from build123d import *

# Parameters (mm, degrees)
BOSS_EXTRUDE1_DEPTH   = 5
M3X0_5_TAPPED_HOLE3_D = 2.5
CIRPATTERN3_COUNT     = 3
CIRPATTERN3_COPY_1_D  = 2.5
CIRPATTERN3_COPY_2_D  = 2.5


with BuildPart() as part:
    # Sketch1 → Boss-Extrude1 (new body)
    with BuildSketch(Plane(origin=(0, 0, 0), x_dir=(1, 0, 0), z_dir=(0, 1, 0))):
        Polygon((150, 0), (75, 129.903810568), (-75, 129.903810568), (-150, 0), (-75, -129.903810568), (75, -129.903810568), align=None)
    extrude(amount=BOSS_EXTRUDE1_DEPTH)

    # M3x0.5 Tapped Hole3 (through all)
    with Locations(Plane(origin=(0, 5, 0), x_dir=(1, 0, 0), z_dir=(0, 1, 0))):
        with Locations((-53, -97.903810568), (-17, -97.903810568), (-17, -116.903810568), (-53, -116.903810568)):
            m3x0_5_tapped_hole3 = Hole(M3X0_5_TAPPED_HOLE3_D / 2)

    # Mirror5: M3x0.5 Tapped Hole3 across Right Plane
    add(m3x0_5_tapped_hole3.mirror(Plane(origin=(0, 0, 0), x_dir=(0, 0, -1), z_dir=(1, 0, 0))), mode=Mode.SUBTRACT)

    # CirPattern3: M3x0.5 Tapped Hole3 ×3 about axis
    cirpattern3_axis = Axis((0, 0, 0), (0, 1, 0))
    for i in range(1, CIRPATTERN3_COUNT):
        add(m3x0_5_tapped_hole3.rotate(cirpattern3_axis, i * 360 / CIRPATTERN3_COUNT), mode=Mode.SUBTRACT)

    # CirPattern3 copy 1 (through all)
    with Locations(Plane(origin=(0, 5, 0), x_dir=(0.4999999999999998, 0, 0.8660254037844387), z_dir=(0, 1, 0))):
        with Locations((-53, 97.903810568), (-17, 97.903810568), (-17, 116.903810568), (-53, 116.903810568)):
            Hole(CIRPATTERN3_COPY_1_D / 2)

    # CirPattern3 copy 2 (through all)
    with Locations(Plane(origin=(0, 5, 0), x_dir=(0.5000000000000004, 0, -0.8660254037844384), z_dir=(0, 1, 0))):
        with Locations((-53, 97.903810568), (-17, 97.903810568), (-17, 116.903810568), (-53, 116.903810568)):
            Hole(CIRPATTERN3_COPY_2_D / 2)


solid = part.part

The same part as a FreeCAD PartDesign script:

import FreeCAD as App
import Part
import Sketcher
Q = App.Units.Quantity


def add_polygon(sketch, points):
    """Adds a closed chain of lines whose ends are joined by coincident constraints."""
    first, n = sketch.GeometryCount, len(points)
    for a, b in zip(points, points[1:] + points[:1]):
        sketch.addGeometry(Part.LineSegment(App.Vector(*a, 0), App.Vector(*b, 0)), False)
    for i in range(n):
        sketch.addConstraint(Sketcher.Constraint("Coincident", first + i, 2, first + (i + 1) % n, 1))

doc = App.newDocument("Part")
body = doc.addObject("PartDesign::Body", "Body")

# Sketch on XZ plane
sketch1 = doc.addObject("Sketcher::SketchObject", "Sketch")
body.addObject(sketch1)
sketch1.AttachmentSupport = (doc.XZ_Plane, [""])
sketch1.MapMode = "FlatFace"
add_polygon(sketch1, [(150, 0), (75, -129.903811), (-75, -129.903811), (-150, 0), (-75, 129.903811), (75, 129.903811)])  # lines 0-5
sketch1.addConstraint(Sketcher.Constraint("Horizontal", 1))
sketch1.addConstraint(Sketcher.Constraint("Horizontal", 4))
sketch1.addConstraint(Sketcher.Constraint("Symmetric", 0, 2, 3, 2, -1, 1))
sketch1.addConstraint(Sketcher.Constraint("Symmetric", 2, 2, 5, 2, -1, 1))
sketch1.addConstraint(Sketcher.Constraint("PointOnObject", 2, 2, -1))
sketch1.addConstraint(Sketcher.Constraint("Parallel", 2, 5))
sketch1.addConstraint(Sketcher.Constraint("Vertical", 1, 2, 3, 2))
sketch1.addConstraint(Sketcher.Constraint("DistanceX", 1, 2, 1, 1, Q("150 mm")))
sketch1.addConstraint(Sketcher.Constraint("Angle", 0, Q("-120 deg")))
sketch1.addConstraint(Sketcher.Constraint("Distance", 0, Q("150 mm")))
pad1 = doc.addObject("PartDesign::Pad", "Pad")
body.addObject(pad1)
pad1.Profile = sketch1
pad1.Length = 5
pad1.Reversed = True

# Sketch on XZ plane
sketch2 = doc.addObject("Sketcher::SketchObject", "Sketch001")
body.addObject(sketch2)
sketch2.AttachmentSupport = (doc.XZ_Plane, [""])
sketch2.MapMode = "FlatFace"
sketch2.AttachmentOffset = App.Placement(App.Vector(0, 0, -5), App.Rotation())
sketch2.addGeometry(Part.Circle(App.Vector(-53, 97.903811, 0), App.Vector(0, 0, 1), 1.25), False)
sketch2.addGeometry(Part.Circle(App.Vector(-17, 97.903811, 0), App.Vector(0, 0, 1), 1.25), False)
sketch2.addGeometry(Part.Circle(App.Vector(-17, 116.903811, 0), App.Vector(0, 0, 1), 1.25), False)
sketch2.addGeometry(Part.Circle(App.Vector(-53, 116.903811, 0), App.Vector(0, 0, 1), 1.25), False)
sketch2.addConstraint(Sketcher.Constraint("Equal", 0, 1))
sketch2.addConstraint(Sketcher.Constraint("Equal", 1, 2))
sketch2.addConstraint(Sketcher.Constraint("Equal", 2, 3))
sketch2.addConstraint(Sketcher.Constraint("Horizontal", 0, 3, 1, 3))
sketch2.addConstraint(Sketcher.Constraint("Horizontal", 2, 3, 3, 3))
sketch2.addConstraint(Sketcher.Constraint("Vertical", 1, 3, 2, 3))
sketch2.addConstraint(Sketcher.Constraint("Vertical", 0, 3, 3, 3))
sketch2.addConstraint(Sketcher.Constraint("Diameter", 0, Q("2.5 mm")))
sketch2.addConstraint(Sketcher.Constraint("DistanceX", 0, 3, -1, 1, Q("53 mm")))
sketch2.addConstraint(Sketcher.Constraint("DistanceX", 1, 3, -1, 1, Q("17 mm")))
sketch2.addConstraint(Sketcher.Constraint("DistanceY", 1, 3, 2, 3, Q("19 mm")))
sketch2.addConstraint(Sketcher.Constraint("DistanceY", -1, 1, 0, 3, Q("97.903811 mm")))
doc.recompute()
hole = doc.addObject("PartDesign::Hole", "Hole")
body.addObject(hole)
hole.Profile = sketch2
hole.ThreadType = "None"
hole.Diameter = 2.5
hole.DepthType = "ThroughAll"
hole.Reversed = True
doc.recompute()

mirrored = doc.addObject("PartDesign::Mirrored", "Mirrored")
body.addObject(mirrored)
mirrored.Originals = [hole]
mirrored.MirrorPlane = (doc.YZ_Plane, [""])
body.Tip = mirrored
doc.recompute()

polarpattern = doc.addObject("PartDesign::PolarPattern", "PolarPattern")
body.addObject(polarpattern)
polarpattern.Originals = [hole]
polarpattern.Axis = (doc.Y_Axis, [""])
polarpattern.Angle = 360
polarpattern.Occurrences = 3
body.Tip = polarpattern

# Sketch on XZ plane
sketch3 = doc.addObject("Sketcher::SketchObject", "Sketch002")
body.addObject(sketch3)
sketch3.AttachmentSupport = (doc.XZ_Plane, [""])
sketch3.MapMode = "FlatFace"
sketch3.AttachmentOffset = App.Placement(App.Vector(0, 0, -5), App.Rotation())
sketch3.addGeometry(Part.Circle(App.Vector(58.287187, -94.851252, 0), App.Vector(0, 0, 1), 1.25), False)
sketch3.addGeometry(Part.Circle(App.Vector(76.287187, -63.674337, 0), App.Vector(0, 0, 1), 1.25), False)
sketch3.addGeometry(Part.Circle(App.Vector(92.74167, -73.174337, 0), App.Vector(0, 0, 1), 1.25), False)
sketch3.addGeometry(Part.Circle(App.Vector(74.74167, -104.351252, 0), App.Vector(0, 0, 1), 1.25), False)
sketch3.addConstraint(Sketcher.Constraint("Equal", 0, 1))
sketch3.addConstraint(Sketcher.Constraint("Equal", 1, 2))
sketch3.addConstraint(Sketcher.Constraint("Equal", 2, 3))
sketch3.addConstraint(Sketcher.Constraint("Diameter", 0, Q("2.5 mm")))
sketch3.addConstraint(Sketcher.Constraint("DistanceX", 0, 3, 1, 3, Q("18 mm")))
sketch3.addConstraint(Sketcher.Constraint("DistanceX", 3, 3, 2, 3, Q("18 mm")))
sketch3.addConstraint(Sketcher.Constraint("DistanceY", 2, 3, 1, 3, Q("9.5 mm")))
sketch3.addConstraint(Sketcher.Constraint("DistanceY", 3, 3, 0, 3, Q("9.5 mm")))
sketch3.addConstraint(Sketcher.Constraint("DistanceY", 0, 3, -1, 1, Q("94.851252 mm")))
sketch3.addConstraint(Sketcher.Constraint("DistanceX", -1, 1, 2, 3, Q("92.74167 mm")))
sketch3.addConstraint(Sketcher.Constraint("DistanceX", -1, 1, 0, 3, Q("58.287187 mm")))
sketch3.addConstraint(Sketcher.Constraint("DistanceY", 1, 3, -1, 1, Q("63.674337 mm")))
doc.recompute()
hole2 = doc.addObject("PartDesign::Hole", "Hole001")
body.addObject(hole2)
hole2.Profile = sketch3
hole2.ThreadType = "None"
hole2.Diameter = 2.5
hole2.DepthType = "ThroughAll"
hole2.Reversed = True

# Sketch on XZ plane
sketch4 = doc.addObject("Sketcher::SketchObject", "Sketch003")
body.addObject(sketch4)
sketch4.AttachmentSupport = (doc.XZ_Plane, [""])
sketch4.MapMode = "FlatFace"
sketch4.AttachmentOffset = App.Placement(App.Vector(0, 0, -5), App.Rotation())
sketch4.addGeometry(Part.Circle(App.Vector(-111.287187, -3.052559, 0), App.Vector(0, 0, 1), 1.25), False)
sketch4.addGeometry(Part.Circle(App.Vector(-93.287187, -34.229473, 0), App.Vector(0, 0, 1), 1.25), False)
sketch4.addGeometry(Part.Circle(App.Vector(-109.74167, -43.729473, 0), App.Vector(0, 0, 1), 1.25), False)
sketch4.addGeometry(Part.Circle(App.Vector(-127.74167, -12.552559, 0), App.Vector(0, 0, 1), 1.25), False)
sketch4.addConstraint(Sketcher.Constraint("Equal", 0, 1))
sketch4.addConstraint(Sketcher.Constraint("Equal", 1, 2))
sketch4.addConstraint(Sketcher.Constraint("Equal", 2, 3))
sketch4.addConstraint(Sketcher.Constraint("Diameter", 0, Q("2.5 mm")))
sketch4.addConstraint(Sketcher.Constraint("DistanceX", 0, 3, 1, 3, Q("18 mm")))
sketch4.addConstraint(Sketcher.Constraint("DistanceX", 3, 3, 2, 3, Q("18 mm")))
sketch4.addConstraint(Sketcher.Constraint("DistanceY", 2, 3, 1, 3, Q("9.5 mm")))
sketch4.addConstraint(Sketcher.Constraint("DistanceY", 3, 3, 0, 3, Q("9.5 mm")))
sketch4.addConstraint(Sketcher.Constraint("DistanceY", 0, 3, -1, 1, Q("3.052559 mm")))
sketch4.addConstraint(Sketcher.Constraint("DistanceX", 2, 3, -1, 1, Q("109.74167 mm")))
sketch4.addConstraint(Sketcher.Constraint("DistanceX", 0, 3, -1, 1, Q("111.287187 mm")))
sketch4.addConstraint(Sketcher.Constraint("DistanceY", 1, 3, -1, 1, Q("34.229473 mm")))
doc.recompute()
hole3 = doc.addObject("PartDesign::Hole", "Hole002")
body.addObject(hole3)
hole3.Profile = sketch4
hole3.ThreadType = "None"
hole3.Diameter = 2.5
hole3.DepthType = "ThroughAll"
hole3.Reversed = True

doc.recompute()
